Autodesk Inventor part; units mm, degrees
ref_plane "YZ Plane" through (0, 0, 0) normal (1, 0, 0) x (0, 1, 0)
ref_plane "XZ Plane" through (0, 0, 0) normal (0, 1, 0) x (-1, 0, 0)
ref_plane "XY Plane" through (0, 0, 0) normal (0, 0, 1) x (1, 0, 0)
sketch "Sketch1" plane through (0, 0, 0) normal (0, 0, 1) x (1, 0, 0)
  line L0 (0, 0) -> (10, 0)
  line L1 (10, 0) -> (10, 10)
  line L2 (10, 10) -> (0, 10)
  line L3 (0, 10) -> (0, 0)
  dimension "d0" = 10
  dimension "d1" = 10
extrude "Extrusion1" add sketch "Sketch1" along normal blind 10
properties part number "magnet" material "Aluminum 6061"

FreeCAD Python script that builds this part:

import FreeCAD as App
import Part
import Sketcher
from FreeCAD import Vector

doc = App.newDocument("Part")
body = doc.addObject("PartDesign::Body", "Body")

# Sketch on XY plane
sketch1 = body.newObject("Sketcher::SketchObject", "Sketch")
sketch1.AttachmentSupport = (doc.getObject("XY_Plane"), [""])
sketch1.MapMode = "FlatFace"
sketch1.addGeometry([
    Part.LineSegment(Vector(0, 10, 0), Vector(0, 0, 0)),
    Part.LineSegment(Vector(0, 0, 0), Vector(10, 0, 0)),
    Part.LineSegment(Vector(10, 0, 0), Vector(10, 10, 0)),
    Part.LineSegment(Vector(10, 10, 0), Vector(0, 10, 0)),
], False)
sketch1.addConstraint([
    Sketcher.Constraint("Coincident", 0, 2, 1, 1),
    Sketcher.Constraint("Coincident", 1, 2, 2, 1),
    Sketcher.Constraint("Coincident", 2, 2, 3, 1),
    Sketcher.Constraint("Coincident", 3, 2, 0, 1),
    Sketcher.Constraint("Vertical", 0),
    Sketcher.Constraint("Horizontal", 1),
    Sketcher.Constraint("Vertical", 2),
    Sketcher.Constraint("Horizontal", 3),
    Sketcher.Constraint("Coincident", 0, 2, -1, 1),
    Sketcher.Constraint("Equal", 3, 0),
    Sketcher.Constraint("DistanceX", 1, 1, 1, 2, 10.0),
])
pad1 = body.newObject("PartDesign::Pad", "Pad")
pad1.Profile = sketch1
pad1.Length = 10

doc.recompute()
